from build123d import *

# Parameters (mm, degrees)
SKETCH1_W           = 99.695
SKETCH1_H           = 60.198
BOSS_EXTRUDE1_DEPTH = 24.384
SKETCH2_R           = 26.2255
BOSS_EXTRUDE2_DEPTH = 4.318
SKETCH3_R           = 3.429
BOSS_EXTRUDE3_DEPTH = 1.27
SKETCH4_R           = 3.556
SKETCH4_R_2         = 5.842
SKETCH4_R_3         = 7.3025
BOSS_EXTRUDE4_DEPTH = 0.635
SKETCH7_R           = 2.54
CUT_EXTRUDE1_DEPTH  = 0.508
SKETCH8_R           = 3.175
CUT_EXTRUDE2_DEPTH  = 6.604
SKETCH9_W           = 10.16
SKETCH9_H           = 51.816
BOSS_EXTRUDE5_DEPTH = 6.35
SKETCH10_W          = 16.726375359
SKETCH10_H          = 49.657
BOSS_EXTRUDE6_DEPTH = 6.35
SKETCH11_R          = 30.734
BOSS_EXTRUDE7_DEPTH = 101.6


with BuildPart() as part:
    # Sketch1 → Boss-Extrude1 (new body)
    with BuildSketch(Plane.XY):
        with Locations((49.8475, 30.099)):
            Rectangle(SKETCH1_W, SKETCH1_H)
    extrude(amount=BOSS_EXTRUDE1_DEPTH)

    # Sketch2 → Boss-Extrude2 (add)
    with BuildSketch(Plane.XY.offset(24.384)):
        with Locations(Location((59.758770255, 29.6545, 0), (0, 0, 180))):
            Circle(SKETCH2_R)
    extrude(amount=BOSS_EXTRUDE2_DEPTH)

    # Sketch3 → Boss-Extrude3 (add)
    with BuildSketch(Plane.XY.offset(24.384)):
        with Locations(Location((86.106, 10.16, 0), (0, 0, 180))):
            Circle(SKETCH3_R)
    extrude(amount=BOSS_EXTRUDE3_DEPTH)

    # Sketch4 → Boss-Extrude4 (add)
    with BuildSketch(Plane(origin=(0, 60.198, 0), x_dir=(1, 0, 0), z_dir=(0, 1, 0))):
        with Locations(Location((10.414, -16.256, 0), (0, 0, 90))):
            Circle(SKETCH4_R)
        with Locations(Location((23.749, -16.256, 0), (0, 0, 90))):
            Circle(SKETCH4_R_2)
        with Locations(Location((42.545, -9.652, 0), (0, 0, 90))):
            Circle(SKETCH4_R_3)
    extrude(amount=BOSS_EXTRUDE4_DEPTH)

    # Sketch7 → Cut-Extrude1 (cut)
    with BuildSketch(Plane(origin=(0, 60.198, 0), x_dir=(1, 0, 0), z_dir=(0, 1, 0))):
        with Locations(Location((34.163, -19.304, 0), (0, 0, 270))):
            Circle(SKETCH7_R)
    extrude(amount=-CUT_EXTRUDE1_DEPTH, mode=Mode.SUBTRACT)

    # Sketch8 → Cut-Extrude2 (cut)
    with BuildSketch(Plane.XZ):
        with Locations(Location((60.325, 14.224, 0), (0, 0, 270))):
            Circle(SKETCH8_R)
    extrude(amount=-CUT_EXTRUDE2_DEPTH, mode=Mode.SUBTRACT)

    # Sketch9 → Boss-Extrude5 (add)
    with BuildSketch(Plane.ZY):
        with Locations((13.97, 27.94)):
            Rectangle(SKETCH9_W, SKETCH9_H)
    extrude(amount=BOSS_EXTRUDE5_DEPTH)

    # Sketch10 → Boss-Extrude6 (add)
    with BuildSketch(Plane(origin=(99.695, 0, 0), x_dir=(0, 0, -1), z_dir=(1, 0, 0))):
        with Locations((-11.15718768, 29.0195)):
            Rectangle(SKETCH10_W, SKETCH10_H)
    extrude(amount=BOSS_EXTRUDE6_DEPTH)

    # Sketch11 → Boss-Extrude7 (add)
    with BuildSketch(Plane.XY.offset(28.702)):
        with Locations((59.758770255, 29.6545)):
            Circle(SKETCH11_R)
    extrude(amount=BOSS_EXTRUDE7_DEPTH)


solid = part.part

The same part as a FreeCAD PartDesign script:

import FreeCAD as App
import Part
import Sketcher

V = App.Vector
Q = App.Units.Quantity


def add_polygon(sketch, points):
    """Adds a closed chain of lines whose ends are joined by coincident constraints."""
    first, n = sketch.GeometryCount, len(points)
    for a, b in zip(points, points[1:] + points[:1]):
        sketch.addGeometry(Part.LineSegment(App.Vector(*a, 0), App.Vector(*b, 0)), False)
    for i in range(n):
        sketch.addConstraint(Sketcher.Constraint("Coincident", first + i, 2, first + (i + 1) % n, 1))

doc = App.newDocument("Part")
body = doc.addObject("PartDesign::Body", "Body")

# Sketch on XY plane
sketch1 = doc.addObject("Sketcher::SketchObject", "Sketch")
body.addObject(sketch1)
sketch1.AttachmentSupport = (doc.XY_Plane, [""])
sketch1.MapMode = "FlatFace"
add_polygon(sketch1, [(0, 60), (0, 0), (100, 0), (100, 60)])  # lines 0-3
sketch1.addConstraint([
    Sketcher.Constraint("Vertical", 0),
    Sketcher.Constraint("Horizontal", 1),
    Sketcher.Constraint("Vertical", 2),
    Sketcher.Constraint("Horizontal", 3),
    Sketcher.Constraint("Coincident", 0, 2, -1, 1),
    Sketcher.Constraint("DistanceY", 0, 2, 0, 1, Q("2.37 in")),
    Sketcher.Constraint("DistanceX", 1, 1, 1, 2, Q("3.925 in")),
])
pad1 = doc.addObject("PartDesign::Pad", "Pad")
body.addObject(pad1)
pad1.Profile = sketch1
pad1.Length = Q("0.96 in")

# Sketch on XY plane
sketch2 = doc.addObject("Sketcher::SketchObject", "Sketch001")
body.addObject(sketch2)
sketch2.AttachmentSupport = (doc.XY_Plane, [""])
sketch2.MapMode = "FlatFace"
sketch2.AttachmentOffset = App.Placement(V(0, 0, 0.96 * 25.4), App.Rotation())
sketch2.addGeometry(Part.Circle(V(60, 30, 0), V(0, 0, 1), 26), False)
sketch2.addConstraint([
    Sketcher.Constraint("Diameter", 0, Q("2.065 in")),
    Sketcher.Constraint("DistanceY", -1, 1, 0, 3, Q("1.1675 in")),
    Sketcher.Constraint("DistanceX", -1, 1, 0, 3, 59.75877),
])
pad2 = doc.addObject("PartDesign::Pad", "Pad001")
body.addObject(pad2)
pad2.Profile = sketch2
pad2.Length = Q("0.17 in")

# Sketch on XY plane
sketch3 = doc.addObject("Sketcher::SketchObject", "Sketch002")
body.addObject(sketch3)
sketch3.AttachmentSupport = (doc.XY_Plane, [""])
sketch3.MapMode = "FlatFace"
sketch3.AttachmentOffset = App.Placement(V(0, 0, 0.96 * 25.4), App.Rotation())
sketch3.addGeometry(Part.Circle(V(86.1, 10.2, 0), V(0, 0, 1), 3.4), False)
sketch3.addConstraint([
    Sketcher.Constraint("Diameter", 0, Q("0.27 in")),
    Sketcher.Constraint("DistanceY", -1, 1, 0, 3, Q("0.4 in")),
    Sketcher.Constraint("DistanceX", -1, 1, 0, 3, Q("3.39 in")),
])
pad3 = doc.addObject("PartDesign::Pad", "Pad002")
body.addObject(pad3)
pad3.Profile = sketch3
pad3.Length = Q("0.05 in")

# Sketch on XZ plane
sketch4 = doc.addObject("Sketcher::SketchObject", "Sketch003")
body.addObject(sketch4)
sketch4.AttachmentSupport = (doc.XZ_Plane, [""])
sketch4.MapMode = "FlatFace"
sketch4.AttachmentOffset = App.Placement(V(0, 0, -2.37 * 25.4), App.Rotation())
sketch4.addGeometry([
    Part.Circle(V(10.4, 16.3, 0), V(0, 0, 1), 3.6),
    Part.Circle(V(23.7, 16.3, 0), V(0, 0, 1), 5.8),
    Part.Circle(V(42.5, 9.7, 0), V(0, 0, 1), 7.3),
], False)
sketch4.addConstraint([
    Sketcher.Constraint("Horizontal", 0, 3, 1, 3),
    Sketcher.Constraint("Diameter", 0, Q("0.28 in")),
    Sketcher.Constraint("Diameter", 1, Q("0.46 in")),
    Sketcher.Constraint("Diameter", 2, Q("0.575 in")),
    Sketcher.Constraint("DistanceX", -1, 1, 0, 3, Q("0.41 in")),
    Sketcher.Constraint("DistanceY", -1, 1, 0, 3, Q("0.64 in")),
    Sketcher.Constraint("DistanceY", -1, 1, 2, 3, Q("0.38 in")),
    Sketcher.Constraint("DistanceX", 1, 3, 2, 3, Q("0.74 in")),
    Sketcher.Constraint("DistanceX", -1, 1, 1, 3, Q("0.935 in")),
])
pad4 = doc.addObject("PartDesign::Pad", "Pad003")
body.addObject(pad4)
pad4.Profile = sketch4
pad4.Length = Q("0.025 in")
pad4.Reversed = True

# Sketch on XZ plane
sketch5 = doc.addObject("Sketcher::SketchObject", "Sketch004")
body.addObject(sketch5)
sketch5.AttachmentSupport = (doc.XZ_Plane, [""])
sketch5.MapMode = "FlatFace"
sketch5.AttachmentOffset = App.Placement(V(0, 0, -2.37 * 25.4), App.Rotation())
sketch5.addGeometry(Part.Circle(V(34.2, 19.3, 0), V(0, 0, 1), 2.5), False)
sketch5.addConstraint([
    Sketcher.Constraint("Diameter", 0, Q("0.2 in")),
    Sketcher.Constraint("DistanceY", -1, 1, 0, 3, Q("0.76 in")),
    Sketcher.Constraint("DistanceX", -1, 1, 0, 3, Q("1.345 in")),
])
pocket1 = doc.addObject("PartDesign::Pocket", "Pocket")
body.addObject(pocket1)
pocket1.Profile = sketch5
pocket1.Length = Q("0.02 in")
pocket1.Reversed = True

# Sketch on XZ plane
sketch6 = doc.addObject("Sketcher::SketchObject", "Sketch005")
body.addObject(sketch6)
sketch6.AttachmentSupport = (doc.XZ_Plane, [""])
sketch6.MapMode = "FlatFace"
sketch6.addGeometry(Part.Circle(V(60.3, 14.2, 0), V(0, 0, 1), 3.2), False)
sketch6.addConstraint([
    Sketcher.Constraint("Diameter", 0, Q("0.25 in")),
    Sketcher.Constraint("DistanceY", -1, 1, 0, 3, Q("0.56 in")),
    Sketcher.Constraint("DistanceX", -1, 1, 0, 3, Q("2.375 in")),
])
pocket2 = doc.addObject("PartDesign::Pocket", "Pocket001")
body.addObject(pocket2)
pocket2.Profile = sketch6
pocket2.Length = Q("0.26 in")

# Sketch on YZ plane
sketch7 = doc.addObject("Sketcher::SketchObject", "Sketch006")
body.addObject(sketch7)
sketch7.AttachmentSupport = (doc.YZ_Plane, [""])
sketch7.MapMode = "FlatFace"
add_polygon(sketch7, [(54, 9), (2, 9), (2, 19), (54, 19)])  # lines 0-3
sketch7.addConstraint([
    Sketcher.Constraint("Horizontal", 0),
    Sketcher.Constraint("Vertical", 1),
    Sketcher.Constraint("Horizontal", 2),
    Sketcher.Constraint("Vertical", 3),
    Sketcher.Constraint("DistanceY", 1, 1, 1, 2, Q("0.4 in")),
    Sketcher.Constraint("DistanceX", 0, 2, 0, 1, Q("2.04 in")),
    Sketcher.Constraint("DistanceX", -1, 1, 0, 2, Q("0.08 in")),
    Sketcher.Constraint("DistanceY", -1, 1, 0, 2, Q("0.35 in")),
])
pad5 = doc.addObject("PartDesign::Pad", "Pad004")
body.addObject(pad5)
pad5.Profile = sketch7
pad5.Length = Q("0.25 in")
pad5.Reversed = True

# Sketch on YZ plane
sketch8 = doc.addObject("Sketcher::SketchObject", "Sketch007")
body.addObject(sketch8)
sketch8.AttachmentSupport = (doc.YZ_Plane, [""])
sketch8.MapMode = "FlatFace"
sketch8.AttachmentOffset = App.Placement(V(0, 0, 3.925 * 25.4), App.Rotation())
add_polygon(sketch8, [(54, 20), (4, 20), (4, 3), (54, 3)])  # lines 0-3
sketch8.addConstraint([
    Sketcher.Constraint("Horizontal", 0),
    Sketcher.Constraint("Vertical", 1),
    Sketcher.Constraint("Horizontal", 2),
    Sketcher.Constraint("Vertical", 3),
    Sketcher.Constraint("DistanceX", 0, 2, 0, 1, Q("1.955 in")),
    Sketcher.Constraint("DistanceY", -1, 1, 1, 2, Q("0.11 in")),
    Sketcher.Constraint("DistanceX", -1, 1, 2, 2, Q("2.12 in")),
    Sketcher.Constraint("DistanceY", 1, 2, 1, 1, 16.726375),
])
pad6 = doc.addObject("PartDesign::Pad", "Pad005")
body.addObject(pad6)
pad6.Profile = sketch8
pad6.Length = Q("0.25 in")

# Sketch on XY plane
sketch9 = doc.addObject("Sketcher::SketchObject", "Sketch008")
body.addObject(sketch9)
sketch9.AttachmentSupport = (doc.XY_Plane, [""])
sketch9.MapMode = "FlatFace"
sketch9.AttachmentOffset = App.Placement(V(0, 0, 1.13 * 25.4), App.Rotation())
sketch9.addGeometry(Part.Circle(V(60, 30, 0), V(0, 0, 1), 31), False)
sketch9.addConstraint([
    Sketcher.Constraint("Diameter", 0, Q("2.42 in")),
    Sketcher.Constraint("DistanceY", -1, 1, 0, 3, Q("1.1675 in")),
    Sketcher.Constraint("DistanceX", -1, 1, 0, 3, 59.75877),
])
pad7 = doc.addObject("PartDesign::Pad", "Pad006")
body.addObject(pad7)
pad7.Profile = sketch9
pad7.Length = Q("4 in")

doc.recompute()
